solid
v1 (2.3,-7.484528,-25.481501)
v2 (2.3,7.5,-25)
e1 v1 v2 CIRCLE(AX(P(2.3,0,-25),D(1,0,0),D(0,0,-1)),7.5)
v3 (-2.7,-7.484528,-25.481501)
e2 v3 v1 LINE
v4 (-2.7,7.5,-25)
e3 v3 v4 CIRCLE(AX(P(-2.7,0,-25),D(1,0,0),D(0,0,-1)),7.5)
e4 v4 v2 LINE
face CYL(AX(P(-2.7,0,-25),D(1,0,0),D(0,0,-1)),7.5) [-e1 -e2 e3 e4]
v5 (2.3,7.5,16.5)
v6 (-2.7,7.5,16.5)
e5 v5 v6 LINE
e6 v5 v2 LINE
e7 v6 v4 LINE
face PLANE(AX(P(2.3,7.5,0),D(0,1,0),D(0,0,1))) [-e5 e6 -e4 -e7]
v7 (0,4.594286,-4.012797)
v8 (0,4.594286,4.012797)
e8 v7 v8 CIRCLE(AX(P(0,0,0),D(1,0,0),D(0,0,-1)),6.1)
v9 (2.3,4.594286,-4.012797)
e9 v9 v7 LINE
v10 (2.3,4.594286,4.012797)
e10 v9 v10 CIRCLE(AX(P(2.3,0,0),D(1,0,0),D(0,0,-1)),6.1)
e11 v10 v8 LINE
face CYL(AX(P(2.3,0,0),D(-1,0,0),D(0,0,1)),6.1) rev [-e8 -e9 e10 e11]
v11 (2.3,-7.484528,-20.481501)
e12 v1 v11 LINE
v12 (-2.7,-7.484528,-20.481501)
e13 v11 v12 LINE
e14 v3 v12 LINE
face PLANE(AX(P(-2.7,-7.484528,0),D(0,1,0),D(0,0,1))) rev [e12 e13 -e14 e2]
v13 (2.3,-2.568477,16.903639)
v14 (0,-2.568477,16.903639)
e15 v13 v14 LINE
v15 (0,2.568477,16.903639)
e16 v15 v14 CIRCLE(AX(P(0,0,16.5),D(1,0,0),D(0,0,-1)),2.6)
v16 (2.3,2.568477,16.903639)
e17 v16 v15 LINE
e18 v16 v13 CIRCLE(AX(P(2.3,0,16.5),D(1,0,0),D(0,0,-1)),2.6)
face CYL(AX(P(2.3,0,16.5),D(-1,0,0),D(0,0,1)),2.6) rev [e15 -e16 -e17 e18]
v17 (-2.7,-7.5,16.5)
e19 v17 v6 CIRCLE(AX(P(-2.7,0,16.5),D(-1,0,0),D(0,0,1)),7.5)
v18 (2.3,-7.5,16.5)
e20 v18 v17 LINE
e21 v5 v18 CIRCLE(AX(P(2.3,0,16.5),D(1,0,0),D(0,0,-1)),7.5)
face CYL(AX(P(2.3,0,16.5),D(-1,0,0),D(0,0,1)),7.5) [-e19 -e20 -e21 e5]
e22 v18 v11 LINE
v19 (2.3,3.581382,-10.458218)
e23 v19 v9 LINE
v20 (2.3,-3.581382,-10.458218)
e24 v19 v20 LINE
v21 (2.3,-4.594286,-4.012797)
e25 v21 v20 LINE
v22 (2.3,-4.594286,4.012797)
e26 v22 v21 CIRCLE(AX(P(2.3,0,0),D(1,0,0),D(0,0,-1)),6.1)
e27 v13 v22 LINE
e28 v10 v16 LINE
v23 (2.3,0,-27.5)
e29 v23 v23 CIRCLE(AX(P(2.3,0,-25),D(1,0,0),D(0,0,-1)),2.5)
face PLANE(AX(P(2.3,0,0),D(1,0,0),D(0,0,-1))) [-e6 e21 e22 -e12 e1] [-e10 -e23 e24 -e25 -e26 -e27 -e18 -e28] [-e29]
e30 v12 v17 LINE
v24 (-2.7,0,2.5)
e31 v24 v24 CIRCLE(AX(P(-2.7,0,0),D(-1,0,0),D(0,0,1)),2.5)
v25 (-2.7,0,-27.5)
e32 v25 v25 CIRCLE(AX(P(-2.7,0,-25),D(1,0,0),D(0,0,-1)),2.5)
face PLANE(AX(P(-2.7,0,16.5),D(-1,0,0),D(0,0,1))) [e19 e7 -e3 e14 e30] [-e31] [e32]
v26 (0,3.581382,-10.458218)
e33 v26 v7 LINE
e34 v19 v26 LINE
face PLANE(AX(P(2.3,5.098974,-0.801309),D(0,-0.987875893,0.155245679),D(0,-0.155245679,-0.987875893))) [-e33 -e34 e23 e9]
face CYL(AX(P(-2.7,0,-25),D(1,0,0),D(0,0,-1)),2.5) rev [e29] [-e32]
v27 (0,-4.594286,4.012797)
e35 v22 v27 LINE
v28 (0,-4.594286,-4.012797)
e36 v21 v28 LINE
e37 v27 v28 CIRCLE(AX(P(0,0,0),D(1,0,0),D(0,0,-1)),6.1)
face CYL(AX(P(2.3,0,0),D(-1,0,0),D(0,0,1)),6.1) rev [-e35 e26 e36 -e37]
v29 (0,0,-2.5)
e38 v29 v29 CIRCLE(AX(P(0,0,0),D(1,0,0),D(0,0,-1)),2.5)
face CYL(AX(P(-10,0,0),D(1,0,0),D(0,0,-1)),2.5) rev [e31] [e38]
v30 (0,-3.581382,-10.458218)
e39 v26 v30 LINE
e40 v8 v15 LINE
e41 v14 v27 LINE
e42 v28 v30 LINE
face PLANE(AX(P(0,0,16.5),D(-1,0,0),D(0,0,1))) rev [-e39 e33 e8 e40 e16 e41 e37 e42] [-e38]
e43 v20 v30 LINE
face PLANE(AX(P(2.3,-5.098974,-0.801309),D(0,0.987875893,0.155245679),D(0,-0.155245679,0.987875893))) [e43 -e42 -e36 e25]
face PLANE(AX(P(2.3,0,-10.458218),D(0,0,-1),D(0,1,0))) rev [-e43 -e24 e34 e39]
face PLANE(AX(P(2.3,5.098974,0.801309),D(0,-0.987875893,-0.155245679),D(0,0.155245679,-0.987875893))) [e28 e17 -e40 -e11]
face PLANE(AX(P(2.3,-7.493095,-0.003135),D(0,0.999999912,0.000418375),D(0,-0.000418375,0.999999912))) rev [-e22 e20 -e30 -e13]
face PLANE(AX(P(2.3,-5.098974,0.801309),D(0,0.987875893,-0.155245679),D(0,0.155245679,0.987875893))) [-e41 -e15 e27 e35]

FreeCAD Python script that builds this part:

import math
import FreeCAD as App
import Part
import Sketcher

doc = App.newDocument("Part")
body = doc.addObject("PartDesign::Body", "Body")

# Sketch on YZ plane
sketch1 = body.newObject("Sketcher::SketchObject", "Sketch")
sketch1.AttachmentSupport = (doc.getObject("YZ_Plane"), [""])
sketch1.MapMode = "FlatFace"
sketch1.addGeometry([
    Part.LineSegment(App.Vector(-7.5, 16.5, 0), App.Vector(-7.484528, -20.481501, 0)),  # 0
    Part.ArcOfCircle(Part.Circle(App.Vector(0, -20, 0), App.Vector(0, 0, 1), 7.5), math.radians(-176.319075), math.radians(0)),  # 1
    Part.LineSegment(App.Vector(7.5, -20, 0), App.Vector(7.5, 16.5, 0)),  # 2
    Part.ArcOfCircle(Part.Circle(App.Vector(0, 16.5, 0), App.Vector(0, 0, 1), 7.5), math.radians(0), math.radians(180)),  # 3
    Part.ArcOfCircle(Part.Circle(App.Vector(0, 0, 0), App.Vector(0, 0, 1), 6.1), math.radians(-41.135004), math.radians(41.135004)),  # 4
    Part.LineSegment(App.Vector(4.594286, -4.012797, 0), App.Vector(3.581382, -10.458218, 0)),  # 5
    Part.LineSegment(App.Vector(3.581382, -10.458218, 0), App.Vector(-3.581382, -10.458218, 0)),  # 6
    Part.LineSegment(App.Vector(-3.581382, -10.458218, 0), App.Vector(-4.594286, -4.012797, 0)),  # 7
    Part.ArcOfCircle(Part.Circle(App.Vector(0, 0, 0), App.Vector(0, 0, 1), 6.1), math.radians(138.864996), math.radians(221.135004)),  # 8
    Part.LineSegment(App.Vector(-4.594286, 4.012797, 0), App.Vector(-3.660617, 9.954018, 0)),  # 9
    Part.LineSegment(App.Vector(-3.660617, 9.954018, 0), App.Vector(-2.568477, 16.903639, 0)),  # 10
    Part.ArcOfCircle(Part.Circle(App.Vector(0, 16.5, 0), App.Vector(0, 0, 1), 2.6), math.radians(8.931045), math.radians(171.068955)),  # 11
    Part.LineSegment(App.Vector(2.568477, 16.903639, 0), App.Vector(4.594286, 4.012797, 0)),  # 12
    Part.Circle(App.Vector(0, -20, 0), App.Vector(0, 0, 1), 2.5),  # 13
], False)
sketch1.addConstraint([
    Sketcher.Constraint("Coincident", 0, 2, 1, 1),
    Sketcher.Constraint("Tangent", 1, 2, 2, 1),
    Sketcher.Constraint("Tangent", 2, 2, 3, 1),
    Sketcher.Constraint("Coincident", 3, 2, 0, 1),
    Sketcher.Constraint("Coincident", 4, 1, 5, 1),
    Sketcher.Constraint("Coincident", 5, 2, 6, 1),
    Sketcher.Constraint("Coincident", 6, 2, 7, 1),
    Sketcher.Constraint("Coincident", 7, 2, 8, 2),
    Sketcher.Constraint("Coincident", 8, 1, 9, 1),
    Sketcher.Constraint("Coincident", 9, 2, 10, 1),
    Sketcher.Constraint("Tangent", 10, 2, 11, 2),
    Sketcher.Constraint("Tangent", 11, 1, 12, 1),
    Sketcher.Constraint("Coincident", 12, 2, 4, 2),
    Sketcher.Constraint("Vertical", 2),
    Sketcher.Constraint("Horizontal", 6),
    Sketcher.Constraint("Coincident", 4, 3, -1, 1),
    Sketcher.Constraint("Coincident", 8, 3, -1, 1),
    Sketcher.Constraint("Coincident", 11, 3, 3, 3),
    Sketcher.Constraint("Coincident", 13, 3, 1, 3),
    Sketcher.Constraint("Equal", 1, 3),
    Sketcher.Constraint("Equal", 4, 8),
    Sketcher.Constraint("Symmetric", 2, 2, 3, 2, -2),
    Sketcher.Constraint("Parallel", 5, 9),
    Sketcher.Constraint("Parallel", 9, 10),
    Sketcher.Constraint("Parallel", 7, 12),
    Sketcher.Constraint("Horizontal", 4, 1, 7, 2),
    Sketcher.Constraint("Horizontal", 10, 2, 11, 1),
    Sketcher.Constraint("Vertical", 7, 2, 8, 1),
    Sketcher.Constraint("Diameter", 13, 5.0),
    Sketcher.Constraint("Radius", 1, 7.5),
    Sketcher.Constraint("Radius", 4, 6.1),
    Sketcher.Constraint("Radius", 11, 2.6),
    Sketcher.Constraint("DistanceY", 2, 1, 2, 2, 36.5),
    Sketcher.Constraint("DistanceY", 1, 3, -1, 1, 20.0),
    Sketcher.Constraint("DistanceY", 0, 2, -1, 1, 20.481501),
    Sketcher.Constraint("Distance", 12, 13.04905),
    Sketcher.Constraint("DistanceX", 6, 2, 6, 1, 7.162763),
    Sketcher.Constraint("DistanceX", 8, 1, 9, 2, 0.933669),
])
pad1 = body.newObject("PartDesign::Pad", "Pad")
pad1.Profile = sketch1
pad1.Length = 2.3

# Sketch on YZ plane
sketch2 = body.newObject("Sketcher::SketchObject", "Sketch001")
sketch2.AttachmentSupport = (doc.getObject("YZ_Plane"), [""])
sketch2.MapMode = "FlatFace"
sketch2.AttachmentOffset = App.Placement(App.Vector(0, 0, -2.7), App.Rotation())
sketch2.addGeometry([
    Part.LineSegment(App.Vector(7.5, 16.5, 0), App.Vector(7.5, -20, 0)),  # 0
    Part.ArcOfCircle(Part.Circle(App.Vector(0, -20, 0), App.Vector(0, 0, 1), 7.5), math.radians(-176.319075), math.radians(0)),  # 1
    Part.LineSegment(App.Vector(-7.484528, -20.481501, 0), App.Vector(-7.5, 16.5, 0)),  # 2
    Part.ArcOfCircle(Part.Circle(App.Vector(0, 16.5, 0), App.Vector(0, 0, 1), 7.5), math.radians(0), math.radians(180)),  # 3
    Part.Circle(App.Vector(0, -20, 0), App.Vector(0, 0, 1), 2.5),  # 4
], False)
sketch2.addConstraint([
    Sketcher.Constraint("Tangent", 0, 2, 1, 2),
    Sketcher.Constraint("Coincident", 1, 1, 2, 1),
    Sketcher.Constraint("Coincident", 2, 2, 3, 2),
    Sketcher.Constraint("Tangent", 3, 1, 0, 1),
    Sketcher.Constraint("Vertical", 0),
    Sketcher.Constraint("Coincident", 4, 3, 1, 3),
    Sketcher.Constraint("Equal", 1, 3),
    Sketcher.Constraint("Symmetric", 2, 2, 3, 1, -2),
    Sketcher.Constraint("Diameter", 4, 5.0),
    Sketcher.Constraint("Radius", 1, 7.5),
    Sketcher.Constraint("DistanceY", 0, 2, 0, 1, 36.5),
    Sketcher.Constraint("DistanceY", 1, 3, -1, 1, 20.0),
    Sketcher.Constraint("DistanceY", 1, 1, -1, 1, 20.481501),
])
pad2 = body.newObject("PartDesign::Pad", "Pad001")
pad2.Profile = sketch2
pad2.Length = 2.7

# Sketch on YZ plane
sketch3 = body.newObject("Sketcher::SketchObject", "Sketch002")
sketch3.AttachmentSupport = (doc.getObject("YZ_Plane"), [""])
sketch3.MapMode = "FlatFace"
sketch3.addGeometry(Part.Circle(App.Vector(0, 0, 0), App.Vector(0, 0, 1), 2.5), False)
sketch3.addConstraint([
    Sketcher.Constraint("Coincident", 0, 3, -1, 1),
    Sketcher.Constraint("Diameter", 0, 5.0),
])
pocket1 = body.newObject("PartDesign::Pocket", "Pocket")
pocket1.Profile = sketch3
pocket1.Length = 10

# Sketch on YZ plane
sketch4 = body.newObject("Sketcher::SketchObject", "Sketch003")
sketch4.AttachmentSupport = (doc.getObject("YZ_Plane"), [""])
sketch4.MapMode = "FlatFace"
sketch4.AttachmentOffset = App.Placement(App.Vector(0, 0, -2.7), App.Rotation())
sketch4.addGeometry([
    Part.ArcOfCircle(Part.Circle(App.Vector(0, -25, 0), App.Vector(0, 0, 1), 7.5), math.radians(-176.319075), math.radians(0)),  # 0
    Part.LineSegment(App.Vector(7.5, -25, 0), App.Vector(7.5, -20, 0)),  # 1
    Part.ArcOfCircle(Part.Circle(App.Vector(0, -20, 0), App.Vector(0, 0, 1), 7.5), math.radians(-176.319075), math.radians(0)),  # 2
    Part.LineSegment(App.Vector(-7.484528, -20.481501, 0), App.Vector(-7.484528, -25.481501, 0)),  # 3
    Part.Circle(App.Vector(0, -20, 0), App.Vector(0, 0, 1), 2.5),  # 4
], False)
sketch4.addConstraint([
    Sketcher.Constraint("Tangent", 0, 2, 1, 1),
    Sketcher.Constraint("Tangent", 1, 2, 2, 2),
    Sketcher.Constraint("Coincident", 2, 1, 3, 1),
    Sketcher.Constraint("Coincident", 3, 2, 0, 1),
    Sketcher.Constraint("Vertical", 1),
    Sketcher.Constraint("Vertical", 3),
    Sketcher.Constraint("Coincident", 4, 3, 2, 3),
    Sketcher.Constraint("Equal", 0, 2),
    Sketcher.Constraint("PointOnObject", 0, 3, -2),
    Sketcher.Constraint("Diameter", 4, 5.0),
    Sketcher.Constraint("Radius", 0, 7.5),
    Sketcher.Constraint("DistanceY", 1, 1, 1, 2, 5.0),
    Sketcher.Constraint("DistanceY", 0, 3, -1, 1, 25.0),
    Sketcher.Constraint("DistanceY", 2, 1, -1, 1, 20.481501),
])
pad3 = body.newObject("PartDesign::Pad", "Pad002")
pad3.Profile = sketch4
pad3.Length = 5

# Sketch on YZ plane
sketch5 = body.newObject("Sketcher::SketchObject", "Sketch004")
sketch5.AttachmentSupport = (doc.getObject("YZ_Plane"), [""])
sketch5.MapMode = "FlatFace"
sketch5.AttachmentOffset = App.Placement(App.Vector(0, 0, 2.3), App.Rotation())
sketch5.addGeometry(Part.Circle(App.Vector(0, -25, 0), App.Vector(0, 0, 1), 2.5), False)
sketch5.addConstraint([
    Sketcher.Constraint("PointOnObject", 0, 3, -2),
    Sketcher.Constraint("Diameter", 0, 5.0),
    Sketcher.Constraint("DistanceY", 0, 3, -1, 1, 25.0),
])
pocket2 = body.newObject("PartDesign::Pocket", "Pocket001")
pocket2.Profile = sketch5
pocket2.Length = 5

doc.recompute()
